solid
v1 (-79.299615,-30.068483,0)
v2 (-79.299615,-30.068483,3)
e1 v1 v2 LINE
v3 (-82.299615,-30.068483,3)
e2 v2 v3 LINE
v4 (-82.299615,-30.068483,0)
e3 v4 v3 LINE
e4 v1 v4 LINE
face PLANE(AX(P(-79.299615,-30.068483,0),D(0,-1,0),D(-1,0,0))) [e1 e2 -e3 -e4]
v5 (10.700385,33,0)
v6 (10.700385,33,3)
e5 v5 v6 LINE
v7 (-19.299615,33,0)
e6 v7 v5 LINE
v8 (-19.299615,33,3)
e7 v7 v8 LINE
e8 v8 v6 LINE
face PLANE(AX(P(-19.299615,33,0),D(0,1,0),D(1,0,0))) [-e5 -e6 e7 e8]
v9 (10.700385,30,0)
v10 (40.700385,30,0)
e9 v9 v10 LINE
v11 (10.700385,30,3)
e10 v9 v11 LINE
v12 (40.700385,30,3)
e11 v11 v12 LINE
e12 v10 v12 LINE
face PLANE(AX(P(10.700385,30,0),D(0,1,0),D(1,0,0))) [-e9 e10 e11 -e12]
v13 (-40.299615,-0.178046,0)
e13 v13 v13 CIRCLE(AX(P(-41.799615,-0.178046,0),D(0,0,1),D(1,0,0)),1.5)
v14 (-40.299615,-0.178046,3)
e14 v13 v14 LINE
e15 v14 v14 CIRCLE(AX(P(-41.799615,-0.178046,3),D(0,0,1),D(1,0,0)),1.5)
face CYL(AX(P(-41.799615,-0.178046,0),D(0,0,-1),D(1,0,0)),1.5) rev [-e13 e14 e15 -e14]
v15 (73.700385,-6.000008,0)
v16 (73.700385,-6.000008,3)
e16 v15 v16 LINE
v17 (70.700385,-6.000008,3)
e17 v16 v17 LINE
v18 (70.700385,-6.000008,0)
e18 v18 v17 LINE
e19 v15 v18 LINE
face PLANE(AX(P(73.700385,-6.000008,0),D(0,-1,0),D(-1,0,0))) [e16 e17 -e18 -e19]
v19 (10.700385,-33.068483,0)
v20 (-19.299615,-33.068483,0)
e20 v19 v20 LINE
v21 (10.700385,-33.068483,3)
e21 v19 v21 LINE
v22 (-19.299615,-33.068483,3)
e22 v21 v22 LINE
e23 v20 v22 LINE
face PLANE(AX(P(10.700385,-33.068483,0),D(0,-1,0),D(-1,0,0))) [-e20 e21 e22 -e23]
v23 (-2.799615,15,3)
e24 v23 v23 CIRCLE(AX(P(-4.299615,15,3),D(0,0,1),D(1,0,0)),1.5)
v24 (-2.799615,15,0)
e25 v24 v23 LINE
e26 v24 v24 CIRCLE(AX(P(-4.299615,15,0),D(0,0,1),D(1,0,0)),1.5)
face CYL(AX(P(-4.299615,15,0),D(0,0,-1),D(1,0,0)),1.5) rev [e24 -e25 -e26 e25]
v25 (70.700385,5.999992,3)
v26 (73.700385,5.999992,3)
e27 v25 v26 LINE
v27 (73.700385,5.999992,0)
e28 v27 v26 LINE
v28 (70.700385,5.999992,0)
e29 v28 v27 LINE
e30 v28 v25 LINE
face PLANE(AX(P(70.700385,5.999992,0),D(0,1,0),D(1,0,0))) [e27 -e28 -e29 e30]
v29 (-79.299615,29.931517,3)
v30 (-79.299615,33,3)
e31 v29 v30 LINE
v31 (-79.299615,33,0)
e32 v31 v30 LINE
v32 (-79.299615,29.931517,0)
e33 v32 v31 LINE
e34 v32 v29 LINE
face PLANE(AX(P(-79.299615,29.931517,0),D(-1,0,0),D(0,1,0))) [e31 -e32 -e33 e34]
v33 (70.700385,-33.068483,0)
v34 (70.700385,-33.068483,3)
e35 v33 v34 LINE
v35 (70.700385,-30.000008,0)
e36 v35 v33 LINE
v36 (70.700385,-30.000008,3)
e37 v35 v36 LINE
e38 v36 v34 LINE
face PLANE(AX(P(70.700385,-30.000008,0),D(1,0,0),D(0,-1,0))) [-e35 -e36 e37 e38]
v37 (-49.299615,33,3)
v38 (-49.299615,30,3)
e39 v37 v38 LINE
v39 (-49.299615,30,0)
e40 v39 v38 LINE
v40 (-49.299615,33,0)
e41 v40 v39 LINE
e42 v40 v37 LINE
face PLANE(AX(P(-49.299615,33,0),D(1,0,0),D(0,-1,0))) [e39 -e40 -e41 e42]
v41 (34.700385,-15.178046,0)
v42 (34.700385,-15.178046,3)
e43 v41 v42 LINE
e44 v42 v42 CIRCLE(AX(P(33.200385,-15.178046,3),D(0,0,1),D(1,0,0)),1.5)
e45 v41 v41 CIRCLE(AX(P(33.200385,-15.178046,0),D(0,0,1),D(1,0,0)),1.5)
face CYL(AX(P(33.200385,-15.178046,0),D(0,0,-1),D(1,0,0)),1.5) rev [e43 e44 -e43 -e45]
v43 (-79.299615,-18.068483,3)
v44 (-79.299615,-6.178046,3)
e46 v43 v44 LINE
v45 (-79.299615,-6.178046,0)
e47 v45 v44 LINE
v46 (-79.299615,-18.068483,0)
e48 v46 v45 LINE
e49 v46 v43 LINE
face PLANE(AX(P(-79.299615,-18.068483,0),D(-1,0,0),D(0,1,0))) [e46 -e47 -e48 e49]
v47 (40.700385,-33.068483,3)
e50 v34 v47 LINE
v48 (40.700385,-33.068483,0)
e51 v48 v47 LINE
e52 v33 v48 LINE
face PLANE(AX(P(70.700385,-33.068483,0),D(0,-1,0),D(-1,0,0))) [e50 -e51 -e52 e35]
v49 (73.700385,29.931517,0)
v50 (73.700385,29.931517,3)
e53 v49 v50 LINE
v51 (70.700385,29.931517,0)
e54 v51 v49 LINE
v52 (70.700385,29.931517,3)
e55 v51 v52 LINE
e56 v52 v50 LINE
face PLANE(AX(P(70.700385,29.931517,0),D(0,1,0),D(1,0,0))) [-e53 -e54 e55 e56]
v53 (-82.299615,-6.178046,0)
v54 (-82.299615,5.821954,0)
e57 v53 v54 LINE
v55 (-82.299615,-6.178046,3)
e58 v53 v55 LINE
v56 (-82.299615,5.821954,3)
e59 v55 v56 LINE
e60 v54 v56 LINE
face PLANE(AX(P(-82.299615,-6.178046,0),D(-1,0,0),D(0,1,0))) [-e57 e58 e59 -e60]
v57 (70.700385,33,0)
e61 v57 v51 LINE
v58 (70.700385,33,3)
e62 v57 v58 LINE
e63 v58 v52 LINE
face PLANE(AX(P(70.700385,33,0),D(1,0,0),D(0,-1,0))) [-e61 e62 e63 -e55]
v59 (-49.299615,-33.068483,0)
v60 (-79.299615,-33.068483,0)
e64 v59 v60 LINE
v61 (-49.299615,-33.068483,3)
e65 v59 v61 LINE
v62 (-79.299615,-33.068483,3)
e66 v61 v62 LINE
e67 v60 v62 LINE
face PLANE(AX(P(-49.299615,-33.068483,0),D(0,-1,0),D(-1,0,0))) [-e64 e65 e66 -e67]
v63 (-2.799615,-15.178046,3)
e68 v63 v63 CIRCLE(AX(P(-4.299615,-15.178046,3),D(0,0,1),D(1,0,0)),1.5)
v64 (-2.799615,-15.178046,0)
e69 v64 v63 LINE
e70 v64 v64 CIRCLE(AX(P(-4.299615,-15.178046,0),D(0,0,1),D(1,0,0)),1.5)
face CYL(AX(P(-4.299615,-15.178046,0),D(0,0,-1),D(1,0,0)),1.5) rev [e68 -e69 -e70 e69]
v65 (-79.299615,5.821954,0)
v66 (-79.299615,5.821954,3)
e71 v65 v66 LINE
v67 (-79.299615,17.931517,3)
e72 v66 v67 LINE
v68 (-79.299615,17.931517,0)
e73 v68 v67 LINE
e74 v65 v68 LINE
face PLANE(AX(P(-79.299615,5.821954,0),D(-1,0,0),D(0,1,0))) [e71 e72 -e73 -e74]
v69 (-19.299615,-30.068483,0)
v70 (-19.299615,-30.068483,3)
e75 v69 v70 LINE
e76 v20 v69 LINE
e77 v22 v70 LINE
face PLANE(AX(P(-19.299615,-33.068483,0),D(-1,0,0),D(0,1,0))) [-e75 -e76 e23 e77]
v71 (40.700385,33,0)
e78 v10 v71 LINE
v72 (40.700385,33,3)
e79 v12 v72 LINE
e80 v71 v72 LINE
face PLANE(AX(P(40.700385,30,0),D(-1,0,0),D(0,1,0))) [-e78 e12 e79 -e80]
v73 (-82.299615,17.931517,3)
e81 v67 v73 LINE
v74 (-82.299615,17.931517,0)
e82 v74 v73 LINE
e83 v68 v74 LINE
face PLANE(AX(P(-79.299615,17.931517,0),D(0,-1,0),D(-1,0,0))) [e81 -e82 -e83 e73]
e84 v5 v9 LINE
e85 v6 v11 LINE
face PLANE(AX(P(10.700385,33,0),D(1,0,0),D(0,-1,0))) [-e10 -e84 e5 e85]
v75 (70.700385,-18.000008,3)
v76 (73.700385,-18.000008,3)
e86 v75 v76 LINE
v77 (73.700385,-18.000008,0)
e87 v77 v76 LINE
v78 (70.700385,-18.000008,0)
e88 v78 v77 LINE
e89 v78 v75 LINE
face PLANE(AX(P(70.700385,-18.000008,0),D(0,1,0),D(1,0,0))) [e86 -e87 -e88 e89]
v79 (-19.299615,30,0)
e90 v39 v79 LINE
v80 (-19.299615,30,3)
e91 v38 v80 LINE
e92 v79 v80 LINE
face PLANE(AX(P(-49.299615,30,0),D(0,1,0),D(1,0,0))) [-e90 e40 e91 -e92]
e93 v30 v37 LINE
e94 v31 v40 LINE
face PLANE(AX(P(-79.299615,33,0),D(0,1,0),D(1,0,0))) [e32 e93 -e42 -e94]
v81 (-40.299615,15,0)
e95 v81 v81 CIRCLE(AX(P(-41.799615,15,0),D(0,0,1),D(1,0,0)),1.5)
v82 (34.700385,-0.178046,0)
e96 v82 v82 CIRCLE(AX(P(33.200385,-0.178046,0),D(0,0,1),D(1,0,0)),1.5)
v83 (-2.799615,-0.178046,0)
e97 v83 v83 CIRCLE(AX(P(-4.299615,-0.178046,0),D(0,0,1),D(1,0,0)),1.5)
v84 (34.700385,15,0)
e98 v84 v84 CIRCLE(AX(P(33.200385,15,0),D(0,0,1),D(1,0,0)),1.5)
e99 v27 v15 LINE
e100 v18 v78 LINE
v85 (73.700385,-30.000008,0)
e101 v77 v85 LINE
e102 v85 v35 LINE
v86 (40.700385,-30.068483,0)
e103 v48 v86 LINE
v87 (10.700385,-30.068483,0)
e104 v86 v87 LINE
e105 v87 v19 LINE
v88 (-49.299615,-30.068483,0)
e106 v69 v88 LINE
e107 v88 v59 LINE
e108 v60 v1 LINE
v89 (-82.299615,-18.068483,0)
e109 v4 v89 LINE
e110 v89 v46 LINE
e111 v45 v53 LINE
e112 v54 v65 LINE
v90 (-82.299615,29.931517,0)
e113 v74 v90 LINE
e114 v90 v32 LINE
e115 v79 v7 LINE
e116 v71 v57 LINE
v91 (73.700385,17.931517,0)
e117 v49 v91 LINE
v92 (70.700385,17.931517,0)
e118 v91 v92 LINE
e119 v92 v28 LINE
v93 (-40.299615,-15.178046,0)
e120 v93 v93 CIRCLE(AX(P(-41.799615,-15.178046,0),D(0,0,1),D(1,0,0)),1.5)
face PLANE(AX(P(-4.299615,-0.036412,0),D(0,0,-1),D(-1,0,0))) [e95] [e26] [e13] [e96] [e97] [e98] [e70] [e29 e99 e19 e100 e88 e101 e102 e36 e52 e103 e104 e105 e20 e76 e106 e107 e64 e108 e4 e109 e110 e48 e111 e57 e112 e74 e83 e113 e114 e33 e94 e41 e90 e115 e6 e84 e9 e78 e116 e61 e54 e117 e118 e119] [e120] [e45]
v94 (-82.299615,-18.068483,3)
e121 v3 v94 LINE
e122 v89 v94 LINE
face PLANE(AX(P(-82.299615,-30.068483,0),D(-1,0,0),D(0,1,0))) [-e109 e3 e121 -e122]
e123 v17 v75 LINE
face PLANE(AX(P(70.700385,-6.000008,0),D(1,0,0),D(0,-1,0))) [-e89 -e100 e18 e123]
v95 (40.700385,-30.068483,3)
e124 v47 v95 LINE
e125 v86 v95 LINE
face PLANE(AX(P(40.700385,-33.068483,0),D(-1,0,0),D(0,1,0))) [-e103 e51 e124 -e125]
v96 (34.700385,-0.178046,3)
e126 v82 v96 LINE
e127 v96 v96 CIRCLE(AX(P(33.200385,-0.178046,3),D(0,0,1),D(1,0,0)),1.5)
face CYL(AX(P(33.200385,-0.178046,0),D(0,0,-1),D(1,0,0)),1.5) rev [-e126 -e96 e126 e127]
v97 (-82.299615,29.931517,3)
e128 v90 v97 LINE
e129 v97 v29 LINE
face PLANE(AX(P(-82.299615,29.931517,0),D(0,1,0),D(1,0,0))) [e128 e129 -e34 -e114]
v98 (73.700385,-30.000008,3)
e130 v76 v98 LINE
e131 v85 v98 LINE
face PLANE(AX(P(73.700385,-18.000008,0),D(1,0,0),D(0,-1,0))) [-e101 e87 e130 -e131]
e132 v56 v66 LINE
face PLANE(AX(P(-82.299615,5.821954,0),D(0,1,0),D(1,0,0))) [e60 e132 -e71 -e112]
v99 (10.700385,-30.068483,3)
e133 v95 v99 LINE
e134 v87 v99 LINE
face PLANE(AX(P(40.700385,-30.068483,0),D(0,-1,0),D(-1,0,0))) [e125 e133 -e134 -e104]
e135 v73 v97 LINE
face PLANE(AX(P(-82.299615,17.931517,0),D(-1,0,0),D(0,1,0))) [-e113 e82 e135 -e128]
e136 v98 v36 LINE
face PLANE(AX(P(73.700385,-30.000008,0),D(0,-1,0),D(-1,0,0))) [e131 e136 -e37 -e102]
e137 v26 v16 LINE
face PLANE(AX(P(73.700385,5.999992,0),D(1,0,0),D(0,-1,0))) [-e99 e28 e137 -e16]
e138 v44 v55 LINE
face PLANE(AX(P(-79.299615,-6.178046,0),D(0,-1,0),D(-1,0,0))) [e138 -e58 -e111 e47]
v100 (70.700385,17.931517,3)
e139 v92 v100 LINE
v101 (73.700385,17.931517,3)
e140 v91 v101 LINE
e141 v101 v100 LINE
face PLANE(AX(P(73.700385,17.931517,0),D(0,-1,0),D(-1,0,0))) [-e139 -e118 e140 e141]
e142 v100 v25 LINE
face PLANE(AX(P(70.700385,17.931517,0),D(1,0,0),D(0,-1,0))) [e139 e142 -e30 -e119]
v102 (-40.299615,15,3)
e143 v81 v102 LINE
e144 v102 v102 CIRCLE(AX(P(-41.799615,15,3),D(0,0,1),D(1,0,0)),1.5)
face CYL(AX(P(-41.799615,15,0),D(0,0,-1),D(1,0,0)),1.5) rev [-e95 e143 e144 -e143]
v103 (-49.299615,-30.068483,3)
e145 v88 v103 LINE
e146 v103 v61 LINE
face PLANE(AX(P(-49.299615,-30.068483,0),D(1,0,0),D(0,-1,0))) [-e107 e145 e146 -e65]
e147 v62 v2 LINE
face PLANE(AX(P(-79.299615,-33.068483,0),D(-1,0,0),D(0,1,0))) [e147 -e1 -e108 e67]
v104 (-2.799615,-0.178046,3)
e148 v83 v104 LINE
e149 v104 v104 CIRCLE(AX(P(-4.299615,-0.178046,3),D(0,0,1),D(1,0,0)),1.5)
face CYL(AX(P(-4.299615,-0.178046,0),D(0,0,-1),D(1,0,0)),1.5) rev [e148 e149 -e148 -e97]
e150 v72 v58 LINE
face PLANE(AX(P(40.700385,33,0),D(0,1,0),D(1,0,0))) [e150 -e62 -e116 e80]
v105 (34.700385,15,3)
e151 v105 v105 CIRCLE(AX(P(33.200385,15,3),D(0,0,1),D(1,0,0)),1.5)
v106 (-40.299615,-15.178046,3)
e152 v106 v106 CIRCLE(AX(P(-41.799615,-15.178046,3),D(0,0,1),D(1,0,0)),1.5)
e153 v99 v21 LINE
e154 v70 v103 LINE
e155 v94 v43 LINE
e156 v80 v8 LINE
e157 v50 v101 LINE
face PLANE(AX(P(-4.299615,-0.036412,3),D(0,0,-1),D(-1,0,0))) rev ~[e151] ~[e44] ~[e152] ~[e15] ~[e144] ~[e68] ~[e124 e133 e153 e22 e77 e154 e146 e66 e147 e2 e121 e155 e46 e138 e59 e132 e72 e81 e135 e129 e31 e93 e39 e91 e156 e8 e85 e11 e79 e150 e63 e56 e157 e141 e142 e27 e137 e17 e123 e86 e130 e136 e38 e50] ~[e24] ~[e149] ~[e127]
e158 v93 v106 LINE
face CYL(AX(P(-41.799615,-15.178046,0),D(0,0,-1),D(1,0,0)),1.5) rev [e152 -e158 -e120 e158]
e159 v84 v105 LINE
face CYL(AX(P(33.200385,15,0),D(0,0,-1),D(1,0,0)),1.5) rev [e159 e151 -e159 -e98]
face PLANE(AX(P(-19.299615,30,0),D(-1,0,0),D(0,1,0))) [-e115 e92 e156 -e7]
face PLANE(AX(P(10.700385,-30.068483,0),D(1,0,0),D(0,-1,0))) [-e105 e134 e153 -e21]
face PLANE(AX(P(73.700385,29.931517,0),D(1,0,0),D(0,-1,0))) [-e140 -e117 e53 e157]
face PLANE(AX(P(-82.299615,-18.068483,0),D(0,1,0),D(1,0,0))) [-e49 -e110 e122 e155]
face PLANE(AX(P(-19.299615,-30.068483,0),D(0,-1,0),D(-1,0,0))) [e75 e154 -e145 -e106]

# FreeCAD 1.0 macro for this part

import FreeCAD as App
import Part
import Sketcher

V = App.Vector
Q = App.Units.Quantity


def add_polygon(sketch, points):
    """Adds a closed chain of lines whose ends are joined by coincident constraints."""
    first, n = sketch.GeometryCount, len(points)
    for a, b in zip(points, points[1:] + points[:1]):
        sketch.addGeometry(Part.LineSegment(App.Vector(*a, 0), App.Vector(*b, 0)), False)
    for i in range(n):
        sketch.addConstraint(Sketcher.Constraint("Coincident", first + i, 2, first + (i + 1) % n, 1))

doc = App.newDocument("Part")
body = doc.addObject("PartDesign::Body", "Body")

# Sketch on XY plane
sketch1 = body.newObject("Sketcher::SketchObject", "Sketch")
sketch1.AttachmentSupport = (doc.getObject("XY_Plane"), [""])
sketch1.MapMode = "FlatFace"
add_polygon(sketch1, [(10.700385, -30.068483), (40.700385, -30.068483), (40.700385, -33.068483), (70.700385, -33.068483), (70.700385, -30.000008), (73.700385, -30.000008), (73.700385, -18.000008), (70.700385, -18.000008), (70.700385, -6.000008), (73.700385, -6.000008), (73.700385, 5.999992), (70.700385, 5.999992), (70.700385, 17.931517), (73.700385, 17.931517), (73.700385, 29.931517), (70.700385, 29.931517), (70.700385, 33), (40.700385, 33), (40.700385, 30), (10.700385, 30), (10.700385, 33), (-19.299615, 33), (-19.299615, 30), (-49.299615, 30), (-49.299615, 33), (-79.299615, 33), (-79.299615, 29.931517), (-82.299615, 29.931517), (-82.299615, 17.931517), (-79.299615, 17.931517), (-79.299615, 5.821954), (-82.299615, 5.821954), (-82.299615, -6.178046), (-79.299615, -6.178046), (-79.299615, -18.068483), (-82.299615, -18.068483), (-82.299615, -30.068483), (-79.299615, -30.068483), (-79.299615, -33.068483), (-49.299615, -33.068483), (-49.299615, -30.068483), (-19.299615, -30.068483), (-19.299615, -33.068483), (10.700385, -33.068483)])  # lines 0-43
sketch1.addGeometry(Part.Circle(V(33.200385, -15.178046, 0), V(0, 0, 1), 1.5), False)  # 44
sketch1.addGeometry(Part.Circle(V(33.200385, -0.178046, 0), V(0, 0, 1), 1.5), False)  # 45
sketch1.addGeometry(Part.Circle(V(-4.299615, -15.178046, 0), V(0, 0, 1), 1.5), False)  # 46
sketch1.addGeometry(Part.Circle(V(-41.799615, -15.178046, 0), V(0, 0, 1), 1.5), False)  # 47
sketch1.addGeometry(Part.Circle(V(-4.299615, -0.178046, 0), V(0, 0, 1), 1.5), False)  # 48
sketch1.addGeometry(Part.Circle(V(-41.799615, -0.178046, 0), V(0, 0, 1), 1.5), False)  # 49
sketch1.addGeometry(Part.Circle(V(33.200385, 15, 0), V(0, 0, 1), 1.5), False)  # 50
sketch1.addGeometry(Part.Circle(V(-4.299615, 15, 0), V(0, 0, 1), 1.5), False)  # 51
sketch1.addGeometry(Part.Circle(V(-41.799615, 15, 0), V(0, 0, 1), 1.5), False)  # 52
sketch1.addConstraint([
    Sketcher.Constraint("Horizontal", 0),
    Sketcher.Constraint("Vertical", 1),
    Sketcher.Constraint("Horizontal", 2),
    Sketcher.Constraint("Vertical", 3),
    Sketcher.Constraint("Horizontal", 4),
    Sketcher.Constraint("Vertical", 5),
    Sketcher.Constraint("Horizontal", 6),
    Sketcher.Constraint("Vertical", 7),
    Sketcher.Constraint("Horizontal", 8),
    Sketcher.Constraint("Vertical", 9),
    Sketcher.Constraint("Horizontal", 10),
    Sketcher.Constraint("Vertical", 11),
    Sketcher.Constraint("Horizontal", 12),
    Sketcher.Constraint("Vertical", 13),
    Sketcher.Constraint("Horizontal", 14),
    Sketcher.Constraint("Vertical", 15),
    Sketcher.Constraint("Horizontal", 16),
    Sketcher.Constraint("Vertical", 17),
    Sketcher.Constraint("Horizontal", 18),
    Sketcher.Constraint("Vertical", 19),
    Sketcher.Constraint("Horizontal", 20),
    Sketcher.Constraint("Vertical", 21),
    Sketcher.Constraint("Horizontal", 22),
    Sketcher.Constraint("Vertical", 23),
    Sketcher.Constraint("Horizontal", 24),
    Sketcher.Constraint("Vertical", 25),
    Sketcher.Constraint("Horizontal", 26),
    Sketcher.Constraint("Vertical", 27),
    Sketcher.Constraint("Horizontal", 28),
    Sketcher.Constraint("Vertical", 29),
    Sketcher.Constraint("Horizontal", 30),
    Sketcher.Constraint("Vertical", 31),
    Sketcher.Constraint("Horizontal", 32),
    Sketcher.Constraint("Vertical", 33),
    Sketcher.Constraint("Horizontal", 34),
    Sketcher.Constraint("Vertical", 35),
    Sketcher.Constraint("Horizontal", 36),
    Sketcher.Constraint("Vertical", 37),
    Sketcher.Constraint("Horizontal", 38),
    Sketcher.Constraint("Vertical", 39),
    Sketcher.Constraint("Horizontal", 40),
    Sketcher.Constraint("Vertical", 41),
    Sketcher.Constraint("Horizontal", 42),
    Sketcher.Constraint("Vertical", 43),
    Sketcher.Constraint("Equal", 44, 45),
    Sketcher.Constraint("Equal", 45, 46),
    Sketcher.Constraint("Equal", 46, 47),
    Sketcher.Constraint("Equal", 47, 48),
    Sketcher.Constraint("Equal", 48, 49),
    Sketcher.Constraint("Equal", 49, 50),
    Sketcher.Constraint("Equal", 50, 51),
    Sketcher.Constraint("Equal", 51, 52),
    Sketcher.Constraint("Horizontal", 44, 3, 46, 3),
    Sketcher.Constraint("Horizontal", 46, 3, 47, 3),
    Sketcher.Constraint("Horizontal", 45, 3, 48, 3),
    Sketcher.Constraint("Horizontal", 48, 3, 49, 3),
    Sketcher.Constraint("Horizontal", 50, 3, 51, 3),
    Sketcher.Constraint("Horizontal", 51, 3, 52, 3),
    Sketcher.Constraint("Horizontal", 16, 2, 19, 2),
    Sketcher.Constraint("Horizontal", 18, 2, 21, 2),
    Sketcher.Constraint("Horizontal", 20, 2, 23, 2),
    Sketcher.Constraint("Horizontal", 14, 2, 25, 2),
    Sketcher.Constraint("Horizontal", 12, 2, 27, 2),
    Sketcher.Constraint("Horizontal", 0, 2, 35, 2),
    Sketcher.Constraint("Horizontal", 2, 2, 37, 2),
    Sketcher.Constraint("Horizontal", 36, 2, 39, 2),
    Sketcher.Constraint("Horizontal", 38, 2, 41, 2),
    Sketcher.Constraint("Vertical", 44, 3, 45, 3),
    Sketcher.Constraint("Vertical", 46, 3, 48, 3),
    Sketcher.Constraint("Vertical", 47, 3, 49, 3),
    Sketcher.Constraint("Vertical", 45, 3, 50, 3),
    Sketcher.Constraint("Vertical", 48, 3, 51, 3),
    Sketcher.Constraint("Vertical", 49, 3, 52, 3),
    Sketcher.Constraint("Vertical", 3, 2, 6, 2),
    Sketcher.Constraint("Vertical", 5, 2, 8, 2),
    Sketcher.Constraint("Vertical", 7, 2, 10, 2),
    Sketcher.Constraint("Vertical", 9, 2, 12, 2),
    Sketcher.Constraint("Vertical", 11, 2, 14, 2),
    Sketcher.Constraint("Vertical", 1, 2, 16, 2),
    Sketcher.Constraint("Vertical", 25, 2, 28, 2),
    Sketcher.Constraint("Vertical", 27, 2, 30, 2),
    Sketcher.Constraint("Vertical", 29, 2, 32, 2),
    Sketcher.Constraint("Vertical", 31, 2, 34, 2),
    Sketcher.Constraint("Vertical", 33, 2, 36, 2),
    Sketcher.Constraint("Vertical", 23, 2, 38, 2),
    Sketcher.Constraint("Vertical", 21, 2, 40, 2),
    Sketcher.Constraint("Vertical", 19, 2, 42, 2),
    Sketcher.Constraint("Equal", 0, 2),
    Sketcher.Constraint("Equal", 18, 20),
    Sketcher.Constraint("Equal", 20, 22),
    Sketcher.Constraint("Equal", 22, 24),
    Sketcher.Constraint("Equal", 14, 26),
    Sketcher.Constraint("Equal", 36, 1),
    Sketcher.Constraint("Equal", 5, 7),
    Sketcher.Constraint("Equal", 7, 9),
    Sketcher.Constraint("Equal", 9, 13),
    Sketcher.Constraint("Equal", 1, 17),
    Sketcher.Constraint("Equal", 27, 31),
    Sketcher.Constraint("Equal", 31, 35),
    Sketcher.Constraint("Diameter", 44, Q("3 mm")),
    Sketcher.Constraint("DistanceX", 0, 1, 0, 2, Q("30 mm")),
    Sketcher.Constraint("DistanceX", 4, 1, 4, 2, Q("3 mm")),
    Sketcher.Constraint("DistanceY", 5, 1, 5, 2, Q("12 mm")),
    Sketcher.Constraint("DistanceY", -1, 1, 50, 3, Q("15 mm")),
    Sketcher.Constraint("DistanceY", -1, 1, 15, 2, Q("33 mm")),
    Sketcher.Constraint("DistanceY", 44, 3, 45, 3, Q("15 mm")),
    Sketcher.Constraint("DistanceX", 47, 3, 44, 3, Q("75 mm")),
    Sketcher.Constraint("DistanceX", 46, 3, 0, 2, Q("45 mm")),
    Sketcher.Constraint("DistanceY", 33, 2, 28, 2, Q("36 mm")),
    Sketcher.Constraint("DistanceX", 46, 3, 44, 3, Q("37.5 mm")),
    Sketcher.Constraint("DistanceY", 3, 1, 3, 2, Q("3.068475 mm")),
    Sketcher.Constraint("DistanceY", 15, 1, 15, 2, Q("3.068483 mm")),
    Sketcher.Constraint("DistanceY", 29, 2, 29, 1, Q("12.109563 mm")),
    Sketcher.Constraint("DistanceX", -1, 1, 44, 3, Q("33.200385 mm")),
    Sketcher.Constraint("DistanceY", 44, 3, -1, 1, Q("15.178046 mm")),
])
pad1 = body.newObject("PartDesign::Pad", "Pad")
pad1.Profile = sketch1
pad1.Length = 3

doc.recompute()
